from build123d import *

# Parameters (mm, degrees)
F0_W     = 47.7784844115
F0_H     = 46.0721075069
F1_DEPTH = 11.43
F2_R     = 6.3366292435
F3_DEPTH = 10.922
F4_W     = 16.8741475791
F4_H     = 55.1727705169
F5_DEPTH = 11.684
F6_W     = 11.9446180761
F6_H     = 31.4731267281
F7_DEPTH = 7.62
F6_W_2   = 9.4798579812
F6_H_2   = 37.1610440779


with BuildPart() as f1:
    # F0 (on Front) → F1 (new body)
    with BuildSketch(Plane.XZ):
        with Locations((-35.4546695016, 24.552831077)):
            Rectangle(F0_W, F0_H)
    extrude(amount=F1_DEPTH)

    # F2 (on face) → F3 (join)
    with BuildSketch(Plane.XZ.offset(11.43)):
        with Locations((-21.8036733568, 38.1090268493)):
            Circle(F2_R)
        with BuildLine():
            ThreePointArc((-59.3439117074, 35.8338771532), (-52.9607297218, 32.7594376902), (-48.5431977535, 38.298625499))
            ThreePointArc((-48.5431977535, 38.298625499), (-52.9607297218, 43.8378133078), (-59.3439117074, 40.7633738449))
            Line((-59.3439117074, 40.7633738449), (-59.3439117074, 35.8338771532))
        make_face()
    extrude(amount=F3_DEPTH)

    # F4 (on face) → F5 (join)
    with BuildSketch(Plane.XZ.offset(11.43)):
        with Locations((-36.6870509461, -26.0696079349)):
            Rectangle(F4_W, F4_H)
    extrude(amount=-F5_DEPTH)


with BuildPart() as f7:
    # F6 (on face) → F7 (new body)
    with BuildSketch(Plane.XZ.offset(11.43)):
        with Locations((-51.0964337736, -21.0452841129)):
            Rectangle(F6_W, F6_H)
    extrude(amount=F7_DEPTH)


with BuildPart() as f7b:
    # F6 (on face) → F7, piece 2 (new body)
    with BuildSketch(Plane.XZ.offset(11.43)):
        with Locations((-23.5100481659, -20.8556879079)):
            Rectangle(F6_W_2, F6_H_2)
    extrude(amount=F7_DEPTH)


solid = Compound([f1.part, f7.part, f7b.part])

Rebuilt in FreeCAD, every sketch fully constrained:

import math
import FreeCAD as App
import Part
import Sketcher

V = App.Vector
Q = App.Units.Quantity


def add_polygon(sketch, points):
    """Adds a closed chain of lines whose ends are joined by coincident constraints."""
    first, n = sketch.GeometryCount, len(points)
    for a, b in zip(points, points[1:] + points[:1]):
        sketch.addGeometry(Part.LineSegment(App.Vector(*a, 0), App.Vector(*b, 0)), False)
    for i in range(n):
        sketch.addConstraint(Sketcher.Constraint("Coincident", first + i, 2, first + (i + 1) % n, 1))

doc = App.newDocument("Part")
body = doc.addObject("PartDesign::Body", "Body")

# Sketch on XZ plane
sketch1 = doc.addObject("Sketcher::SketchObject", "Sketch")
body.addObject(sketch1)
sketch1.AttachmentSupport = (doc.XZ_Plane, [""])
sketch1.MapMode = "FlatFace"
add_polygon(sketch1, [(-59, 48), (-59, 2), (-12, 2), (-12, 48)])  # lines 0-3
sketch1.addConstraint([
    Sketcher.Constraint("Vertical", 0),
    Sketcher.Constraint("Horizontal", 1),
    Sketcher.Constraint("Vertical", 2),
    Sketcher.Constraint("Horizontal", 3),
    Sketcher.Constraint("DistanceX", 1, 1, 1, 2, 47.778484),
    Sketcher.Constraint("DistanceY", 0, 2, 0, 1, 46.072108),
    Sketcher.Constraint("DistanceX", 0, 2, -1, 1, 59.343912),
    Sketcher.Constraint("DistanceY", -1, 1, 0, 2, 1.516777),
])
pad1 = doc.addObject("PartDesign::Pad", "Pad")
body.addObject(pad1)
pad1.Profile = sketch1
pad1.Length = Q("0.45 in")

# Sketch on XZ plane
sketch2 = doc.addObject("Sketcher::SketchObject", "Sketch001")
body.addObject(sketch2)
sketch2.AttachmentSupport = (doc.XZ_Plane, [""])
sketch2.MapMode = "FlatFace"
sketch2.AttachmentOffset = App.Placement(V(0, 0, 0.45 * 25.4), App.Rotation())
sketch2.addGeometry([
    Part.Circle(V(-21.8, 38.1, 0), V(0, 0, 1), 6.3),
    Part.ArcOfCircle(Part.Circle(V(-54.2, 38.3, 0), V(0, 0, 1), 5.7), math.radians(-154), math.radians(0)),
    Part.ArcOfCircle(Part.Circle(V(-54.2, 38.3, 0), V(0, 0, 1), 5.7), math.radians(0), math.radians(154)),
    Part.LineSegment(V(-59.3, 40.8, 0), V(-59.3, 35.8, 0)),
], False)
sketch2.addConstraint([
    Sketcher.Constraint("Tangent", 1, 2, 2, 1),
    Sketcher.Constraint("Coincident", 2, 2, 3, 1),
    Sketcher.Constraint("Coincident", 3, 2, 1, 1),
    Sketcher.Constraint("Vertical", 3),
    Sketcher.Constraint("Equal", 1, 2),
    Sketcher.Constraint("Horizontal", 2, 3, 1, 2),
    Sketcher.Constraint("Diameter", 0, 12.673258),
    Sketcher.Constraint("Radius", 1, 5.681588),
    Sketcher.Constraint("DistanceY", 0, 3, 1, 3, 0.189599),
    Sketcher.Constraint("DistanceY", 3, 2, 3, 1, 4.929497),
    Sketcher.Constraint("DistanceX", 2, 2, -1, 1, 59.343912),
    Sketcher.Constraint("DistanceX", 2, 2, 0, 3, 37.540238),
    Sketcher.Constraint("DistanceY", -1, 1, 0, 3, 38.109027),
])
pad2 = doc.addObject("PartDesign::Pad", "Pad001")
body.addObject(pad2)
pad2.Profile = sketch2
pad2.Length = Q("0.43 in")

# Sketch on XZ plane
sketch3 = doc.addObject("Sketcher::SketchObject", "Sketch002")
body.addObject(sketch3)
sketch3.AttachmentSupport = (doc.XZ_Plane, [""])
sketch3.MapMode = "FlatFace"
sketch3.AttachmentOffset = App.Placement(V(0, 0, 0.45 * 25.4), App.Rotation())
add_polygon(sketch3, [(-45, 2), (-45, -54), (-28, -54), (-28, 2)])  # lines 0-3
sketch3.addConstraint([
    Sketcher.Constraint("Vertical", 0),
    Sketcher.Constraint("Horizontal", 1),
    Sketcher.Constraint("Vertical", 2),
    Sketcher.Constraint("Horizontal", 3),
    Sketcher.Constraint("DistanceY", 0, 2, 0, 1, 55.172771),
    Sketcher.Constraint("DistanceX", 1, 1, 1, 2, 16.874148),
    Sketcher.Constraint("DistanceX", 0, 2, -1, 1, 45.124125),
    Sketcher.Constraint("DistanceY", 0, 2, -1, 1, 53.655993),
])
pad3 = doc.addObject("PartDesign::Pad", "Pad002")
body.addObject(pad3)
pad3.Profile = sketch3
pad3.Length = Q("0.46 in")
pad3.Reversed = True
body2 = doc.addObject("PartDesign::Body", "Body001")

# Sketch on XZ plane
sketch4 = doc.addObject("Sketcher::SketchObject", "Sketch003")
body2.addObject(sketch4)
sketch4.AttachmentSupport = (doc.getObject("XZ_Plane001"), [""])
sketch4.MapMode = "FlatFace"
sketch4.AttachmentOffset = App.Placement(V(0, 0, 0.45 * 25.4), App.Rotation())
add_polygon(sketch4, [(-57, -5), (-57, -37), (-45, -37), (-45, -5)])  # lines 0-3
sketch4.addConstraint([
    Sketcher.Constraint("Vertical", 0),
    Sketcher.Constraint("Horizontal", 1),
    Sketcher.Constraint("Vertical", 2),
    Sketcher.Constraint("Horizontal", 3),
    Sketcher.Constraint("DistanceX", 1, 1, 1, 2, 11.944618),
    Sketcher.Constraint("DistanceY", 0, 2, 0, 1, 31.473127),
    Sketcher.Constraint("DistanceY", 2, 2, -1, 1, 5.308721),
    Sketcher.Constraint("DistanceX", 0, 2, -1, 1, 57.068743),
])
pad4 = doc.addObject("PartDesign::Pad", "Pad003")
body2.addObject(pad4)
pad4.Profile = sketch4
pad4.Length = Q("0.3 in")
body3 = doc.addObject("PartDesign::Body", "Body002")

# Sketch on XZ plane
sketch5 = doc.addObject("Sketcher::SketchObject", "Sketch004")
body3.addObject(sketch5)
sketch5.AttachmentSupport = (doc.getObject("XZ_Plane002"), [""])
sketch5.MapMode = "FlatFace"
sketch5.AttachmentOffset = App.Placement(V(0, 0, 0.45 * 25.4), App.Rotation())
add_polygon(sketch5, [(-28, -2), (-28, -39), (-19, -39), (-19, -2)])  # lines 0-3
sketch5.addConstraint([
    Sketcher.Constraint("Vertical", 0),
    Sketcher.Constraint("Horizontal", 1),
    Sketcher.Constraint("Vertical", 2),
    Sketcher.Constraint("Horizontal", 3),
    Sketcher.Constraint("DistanceX", 1, 1, 1, 2, 9.479858),
    Sketcher.Constraint("DistanceY", 0, 2, 0, 1, 37.161044),
    Sketcher.Constraint("DistanceY", 0, 2, -1, 1, 39.43621),
    Sketcher.Constraint("DistanceX", 1, 2, -1, 1, 18.770119),
])
pad5 = doc.addObject("PartDesign::Pad", "Pad004")
body3.addObject(pad5)
pad5.Profile = sketch5
pad5.Length = Q("0.3 in")

doc.recompute()
